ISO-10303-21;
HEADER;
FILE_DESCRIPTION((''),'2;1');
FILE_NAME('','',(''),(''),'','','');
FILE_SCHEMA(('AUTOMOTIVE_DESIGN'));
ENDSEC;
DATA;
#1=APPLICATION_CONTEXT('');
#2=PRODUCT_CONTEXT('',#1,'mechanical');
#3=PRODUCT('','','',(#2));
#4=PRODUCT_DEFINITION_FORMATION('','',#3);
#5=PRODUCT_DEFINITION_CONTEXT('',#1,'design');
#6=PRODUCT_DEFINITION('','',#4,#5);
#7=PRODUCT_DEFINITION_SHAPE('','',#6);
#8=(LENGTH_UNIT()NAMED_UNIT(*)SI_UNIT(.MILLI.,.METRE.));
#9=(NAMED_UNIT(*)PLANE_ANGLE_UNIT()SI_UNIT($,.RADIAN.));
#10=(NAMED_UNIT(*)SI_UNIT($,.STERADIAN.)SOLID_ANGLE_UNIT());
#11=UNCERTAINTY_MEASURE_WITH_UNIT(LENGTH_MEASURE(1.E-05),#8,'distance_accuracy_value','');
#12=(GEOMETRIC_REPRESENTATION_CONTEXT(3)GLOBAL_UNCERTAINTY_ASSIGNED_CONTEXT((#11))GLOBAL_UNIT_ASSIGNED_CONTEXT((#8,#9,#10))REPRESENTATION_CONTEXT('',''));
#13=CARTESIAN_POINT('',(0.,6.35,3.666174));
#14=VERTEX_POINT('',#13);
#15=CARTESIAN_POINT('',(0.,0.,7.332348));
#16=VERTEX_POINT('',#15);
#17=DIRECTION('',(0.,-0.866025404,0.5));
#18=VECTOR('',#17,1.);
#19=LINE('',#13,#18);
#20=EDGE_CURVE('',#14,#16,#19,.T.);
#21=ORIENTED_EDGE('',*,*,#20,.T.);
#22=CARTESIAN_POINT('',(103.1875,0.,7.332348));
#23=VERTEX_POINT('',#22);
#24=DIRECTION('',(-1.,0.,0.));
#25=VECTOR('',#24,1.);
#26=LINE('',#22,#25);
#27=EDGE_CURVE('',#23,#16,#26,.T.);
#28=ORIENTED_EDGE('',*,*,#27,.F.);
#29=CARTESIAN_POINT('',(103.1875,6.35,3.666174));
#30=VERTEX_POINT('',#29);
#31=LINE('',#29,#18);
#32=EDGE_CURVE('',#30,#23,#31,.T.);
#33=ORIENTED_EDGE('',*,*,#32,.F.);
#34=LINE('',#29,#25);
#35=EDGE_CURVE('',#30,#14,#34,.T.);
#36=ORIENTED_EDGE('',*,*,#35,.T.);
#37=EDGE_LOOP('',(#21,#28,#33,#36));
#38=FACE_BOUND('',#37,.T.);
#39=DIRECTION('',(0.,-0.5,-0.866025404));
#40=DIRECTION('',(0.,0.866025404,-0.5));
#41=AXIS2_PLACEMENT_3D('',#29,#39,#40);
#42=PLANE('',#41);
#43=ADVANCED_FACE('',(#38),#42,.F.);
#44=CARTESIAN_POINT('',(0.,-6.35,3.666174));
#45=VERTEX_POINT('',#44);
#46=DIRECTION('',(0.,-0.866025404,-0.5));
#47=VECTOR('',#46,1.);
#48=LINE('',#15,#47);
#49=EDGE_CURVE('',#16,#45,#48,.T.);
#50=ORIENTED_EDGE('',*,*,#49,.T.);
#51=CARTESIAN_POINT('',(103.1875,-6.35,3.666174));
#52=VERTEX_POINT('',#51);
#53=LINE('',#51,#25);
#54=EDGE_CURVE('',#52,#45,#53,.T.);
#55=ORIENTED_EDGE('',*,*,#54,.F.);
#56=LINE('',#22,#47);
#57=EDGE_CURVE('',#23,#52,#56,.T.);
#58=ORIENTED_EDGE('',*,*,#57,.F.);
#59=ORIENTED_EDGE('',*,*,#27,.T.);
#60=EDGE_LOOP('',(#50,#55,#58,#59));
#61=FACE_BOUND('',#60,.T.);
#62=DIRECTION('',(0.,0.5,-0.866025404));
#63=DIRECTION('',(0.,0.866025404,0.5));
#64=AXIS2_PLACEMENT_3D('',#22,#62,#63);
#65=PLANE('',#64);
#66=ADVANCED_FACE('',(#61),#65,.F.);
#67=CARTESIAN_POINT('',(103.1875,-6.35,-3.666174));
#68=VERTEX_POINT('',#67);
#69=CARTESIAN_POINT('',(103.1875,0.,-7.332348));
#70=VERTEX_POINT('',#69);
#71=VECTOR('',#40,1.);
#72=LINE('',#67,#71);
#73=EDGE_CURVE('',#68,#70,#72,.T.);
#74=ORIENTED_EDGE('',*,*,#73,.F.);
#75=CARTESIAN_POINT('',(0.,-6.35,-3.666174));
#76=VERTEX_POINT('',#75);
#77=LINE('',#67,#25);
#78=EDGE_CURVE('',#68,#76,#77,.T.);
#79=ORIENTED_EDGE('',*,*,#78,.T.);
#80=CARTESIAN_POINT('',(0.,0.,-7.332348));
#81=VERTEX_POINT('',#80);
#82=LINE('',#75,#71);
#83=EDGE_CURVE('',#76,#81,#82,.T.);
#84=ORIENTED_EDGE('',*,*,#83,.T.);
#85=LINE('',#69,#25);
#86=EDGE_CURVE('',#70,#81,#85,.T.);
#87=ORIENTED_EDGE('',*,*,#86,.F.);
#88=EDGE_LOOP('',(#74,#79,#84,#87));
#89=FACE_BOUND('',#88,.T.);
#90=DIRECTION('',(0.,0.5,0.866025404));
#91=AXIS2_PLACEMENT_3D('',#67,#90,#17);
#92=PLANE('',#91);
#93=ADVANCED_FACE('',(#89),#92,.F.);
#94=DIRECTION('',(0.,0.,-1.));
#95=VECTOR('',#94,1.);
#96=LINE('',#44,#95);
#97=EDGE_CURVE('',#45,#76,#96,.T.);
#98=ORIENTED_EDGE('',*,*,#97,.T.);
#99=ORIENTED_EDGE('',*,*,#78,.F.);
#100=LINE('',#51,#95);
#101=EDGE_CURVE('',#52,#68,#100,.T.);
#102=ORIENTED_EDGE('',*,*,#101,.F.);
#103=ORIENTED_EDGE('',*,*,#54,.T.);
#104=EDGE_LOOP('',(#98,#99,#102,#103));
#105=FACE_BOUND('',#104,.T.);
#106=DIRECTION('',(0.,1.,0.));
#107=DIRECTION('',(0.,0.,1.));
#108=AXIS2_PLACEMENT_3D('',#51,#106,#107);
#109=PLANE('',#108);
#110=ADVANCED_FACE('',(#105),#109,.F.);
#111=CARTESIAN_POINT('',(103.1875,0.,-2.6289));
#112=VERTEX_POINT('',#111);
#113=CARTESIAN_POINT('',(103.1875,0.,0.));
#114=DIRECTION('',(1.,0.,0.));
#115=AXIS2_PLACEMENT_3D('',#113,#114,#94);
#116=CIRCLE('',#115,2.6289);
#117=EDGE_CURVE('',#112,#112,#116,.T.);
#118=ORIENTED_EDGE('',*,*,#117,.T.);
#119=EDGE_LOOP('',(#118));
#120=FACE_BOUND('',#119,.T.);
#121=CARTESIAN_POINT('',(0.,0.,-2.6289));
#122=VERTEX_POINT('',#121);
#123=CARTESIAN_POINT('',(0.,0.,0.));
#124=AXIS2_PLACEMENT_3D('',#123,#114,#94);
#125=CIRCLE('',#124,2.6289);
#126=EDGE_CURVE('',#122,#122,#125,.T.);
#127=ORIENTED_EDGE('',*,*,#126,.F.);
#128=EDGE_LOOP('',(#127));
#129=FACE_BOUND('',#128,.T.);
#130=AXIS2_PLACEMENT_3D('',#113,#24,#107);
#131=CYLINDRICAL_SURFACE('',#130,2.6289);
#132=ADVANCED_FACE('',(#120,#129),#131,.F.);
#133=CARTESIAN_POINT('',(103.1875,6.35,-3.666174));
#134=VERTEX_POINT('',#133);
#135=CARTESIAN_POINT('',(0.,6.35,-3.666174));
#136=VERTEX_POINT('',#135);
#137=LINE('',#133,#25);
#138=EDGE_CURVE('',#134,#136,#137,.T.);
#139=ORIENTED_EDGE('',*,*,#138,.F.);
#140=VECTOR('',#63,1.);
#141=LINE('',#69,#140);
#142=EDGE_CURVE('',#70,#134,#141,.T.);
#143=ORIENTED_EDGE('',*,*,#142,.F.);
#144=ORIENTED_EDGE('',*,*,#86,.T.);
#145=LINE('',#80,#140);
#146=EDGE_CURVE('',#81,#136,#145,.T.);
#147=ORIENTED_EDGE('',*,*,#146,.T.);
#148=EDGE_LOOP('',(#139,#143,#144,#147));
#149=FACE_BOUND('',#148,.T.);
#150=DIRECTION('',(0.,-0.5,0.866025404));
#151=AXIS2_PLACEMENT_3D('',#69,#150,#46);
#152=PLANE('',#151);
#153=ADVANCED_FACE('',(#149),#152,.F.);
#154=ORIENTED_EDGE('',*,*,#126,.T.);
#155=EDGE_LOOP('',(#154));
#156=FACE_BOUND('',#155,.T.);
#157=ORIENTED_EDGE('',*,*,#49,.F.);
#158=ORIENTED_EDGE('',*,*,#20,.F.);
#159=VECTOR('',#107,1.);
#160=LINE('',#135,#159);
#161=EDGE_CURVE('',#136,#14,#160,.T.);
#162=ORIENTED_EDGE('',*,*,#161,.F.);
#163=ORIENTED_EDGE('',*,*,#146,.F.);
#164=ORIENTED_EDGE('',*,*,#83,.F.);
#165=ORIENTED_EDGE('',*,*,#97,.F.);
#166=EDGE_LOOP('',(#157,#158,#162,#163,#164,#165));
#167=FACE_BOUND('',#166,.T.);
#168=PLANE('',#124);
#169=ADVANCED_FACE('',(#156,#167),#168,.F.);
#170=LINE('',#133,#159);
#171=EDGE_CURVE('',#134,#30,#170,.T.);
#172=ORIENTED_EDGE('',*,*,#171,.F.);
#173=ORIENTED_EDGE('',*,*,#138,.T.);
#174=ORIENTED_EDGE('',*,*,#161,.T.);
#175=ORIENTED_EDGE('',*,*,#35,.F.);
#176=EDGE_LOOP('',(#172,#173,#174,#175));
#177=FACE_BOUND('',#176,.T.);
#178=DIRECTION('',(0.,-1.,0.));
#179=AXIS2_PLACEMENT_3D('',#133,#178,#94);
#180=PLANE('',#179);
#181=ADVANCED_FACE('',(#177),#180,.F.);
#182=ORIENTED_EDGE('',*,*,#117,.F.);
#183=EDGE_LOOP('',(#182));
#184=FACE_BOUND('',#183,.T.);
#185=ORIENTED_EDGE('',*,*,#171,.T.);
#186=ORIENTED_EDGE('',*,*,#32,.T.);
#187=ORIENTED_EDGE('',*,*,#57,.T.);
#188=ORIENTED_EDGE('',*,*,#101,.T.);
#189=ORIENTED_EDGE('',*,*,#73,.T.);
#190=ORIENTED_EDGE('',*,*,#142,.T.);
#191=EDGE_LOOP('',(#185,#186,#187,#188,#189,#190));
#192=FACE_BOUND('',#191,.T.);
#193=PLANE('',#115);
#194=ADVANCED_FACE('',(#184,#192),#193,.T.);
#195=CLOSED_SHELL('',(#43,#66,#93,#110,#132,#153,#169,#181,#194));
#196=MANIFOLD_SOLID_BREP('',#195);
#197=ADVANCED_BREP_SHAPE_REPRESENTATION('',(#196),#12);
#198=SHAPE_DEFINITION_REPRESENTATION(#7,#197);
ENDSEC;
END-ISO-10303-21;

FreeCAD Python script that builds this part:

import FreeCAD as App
import Part
import Sketcher

V = App.Vector
Q = App.Units.Quantity


def add_polygon(sketch, points):
    """Adds a closed chain of lines whose ends are joined by coincident constraints."""
    first, n = sketch.GeometryCount, len(points)
    for a, b in zip(points, points[1:] + points[:1]):
        sketch.addGeometry(Part.LineSegment(App.Vector(*a, 0), App.Vector(*b, 0)), False)
    for i in range(n):
        sketch.addConstraint(Sketcher.Constraint("Coincident", first + i, 2, first + (i + 1) % n, 1))

doc = App.newDocument("Part")
params = doc.addObject("Spreadsheet::Sheet", "Params")
for row, (alias, value) in enumerate([
    ("sketch1_diameter", "0.207 in"),
    ("pad1_length", "4.0625 in"),
], start=1):
    params.set(f"A{row}", alias)
    params.set(f"B{row}", "=" + value)
    params.setAlias(f"B{row}", alias)

body = doc.addObject("PartDesign::Body", "Body")

# Sketch on YZ plane
sketch1 = doc.addObject("Sketcher::SketchObject", "Sketch")
body.addObject(sketch1)
sketch1.AttachmentSupport = (doc.YZ_Plane, [""])
sketch1.MapMode = "FlatFace"
add_polygon(sketch1, [(6.35, -3.666174), (6.35, 3.666174), (0, 7.332348), (-6.35, 3.666174), (-6.35, -3.666174), (0, -7.332348)])  # lines 0-5
sketch1.addGeometry(Part.Circle(V(0, 0, 0), V(0, 0, 1), 2.6289), False)  # 6
sketch1.addConstraint([
    Sketcher.Constraint("Vertical", 0),
    Sketcher.Constraint("Vertical", 3),
    Sketcher.Constraint("Coincident", 6, 3, -1, 1),
    Sketcher.Constraint("Symmetric", 0, 2, 3, 2, -1, 1),
    Sketcher.Constraint("Symmetric", 1, 2, 4, 2, -1, 1),
    Sketcher.Constraint("PointOnObject", 1, 2, -2),
    Sketcher.Constraint("Parallel", 2, 5),
    Sketcher.Constraint("Horizontal", 0, 2, 2, 2),
    Sketcher.Constraint("Diameter", 6, Q("0.207 in")),
    Sketcher.Constraint("Angle", 1, Q("150 deg")),
    Sketcher.Constraint("DistanceX", 2, 2, 0, 2, Q("0.5 in")),
    Sketcher.Constraint("DistanceY", 0, 1, 0, 2, Q("7.332348 mm")),
])
sketch1.setExpression("Constraints[14]", "Params.sketch1_diameter")
pad1 = doc.addObject("PartDesign::Pad", "Pad")
body.addObject(pad1)
pad1.Profile = sketch1
pad1.setExpression("Length", "Params.pad1_length")

doc.recompute()
